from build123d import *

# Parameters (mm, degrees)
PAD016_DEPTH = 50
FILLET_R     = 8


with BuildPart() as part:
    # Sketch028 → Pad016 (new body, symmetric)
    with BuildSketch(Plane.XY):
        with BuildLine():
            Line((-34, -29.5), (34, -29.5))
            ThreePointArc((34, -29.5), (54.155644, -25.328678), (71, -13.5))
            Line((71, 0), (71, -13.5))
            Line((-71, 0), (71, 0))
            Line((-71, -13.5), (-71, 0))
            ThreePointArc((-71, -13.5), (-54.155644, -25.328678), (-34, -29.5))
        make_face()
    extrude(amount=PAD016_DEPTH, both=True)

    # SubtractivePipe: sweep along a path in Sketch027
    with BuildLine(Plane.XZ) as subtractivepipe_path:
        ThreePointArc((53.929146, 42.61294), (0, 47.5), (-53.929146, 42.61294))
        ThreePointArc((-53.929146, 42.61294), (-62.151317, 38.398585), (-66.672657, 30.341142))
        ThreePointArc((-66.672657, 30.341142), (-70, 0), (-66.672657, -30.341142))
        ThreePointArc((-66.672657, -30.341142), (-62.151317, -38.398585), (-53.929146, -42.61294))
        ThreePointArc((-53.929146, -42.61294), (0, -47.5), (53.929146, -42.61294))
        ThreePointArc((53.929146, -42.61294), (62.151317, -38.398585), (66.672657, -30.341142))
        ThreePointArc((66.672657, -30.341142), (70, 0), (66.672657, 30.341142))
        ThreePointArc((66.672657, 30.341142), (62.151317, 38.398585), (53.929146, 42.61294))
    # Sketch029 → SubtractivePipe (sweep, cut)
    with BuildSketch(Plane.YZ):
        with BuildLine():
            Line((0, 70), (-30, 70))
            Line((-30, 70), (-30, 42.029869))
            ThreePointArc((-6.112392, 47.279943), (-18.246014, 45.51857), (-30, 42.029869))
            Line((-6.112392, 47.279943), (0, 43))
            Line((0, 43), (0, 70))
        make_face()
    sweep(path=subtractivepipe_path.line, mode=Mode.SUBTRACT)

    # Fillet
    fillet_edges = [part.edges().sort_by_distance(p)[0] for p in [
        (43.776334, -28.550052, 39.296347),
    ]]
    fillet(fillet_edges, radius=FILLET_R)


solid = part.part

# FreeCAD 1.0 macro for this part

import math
import FreeCAD as App
import Part
import Sketcher
from FreeCAD import Vector
Q = App.Units.Quantity


def edges_at(feature, points):
    """Names of the edges that pass closest to the given points."""
    edges = feature.Shape.Edges
    near = lambda p: min(range(len(edges)), key=lambda i: edges[i].distToShape(Part.Vertex(*p))[0])
    return sorted({f"Edge{near(p) + 1}" for p in points})

doc = App.newDocument("Part")
body = doc.addObject("PartDesign::Body", "Body")

sketch1 = body.newObject("Sketcher::SketchObject", "Sketch")
sketch1.AttachmentSupport = (doc.getObject("XY_Plane"), [""])
sketch1.MapMode = "FlatFace"
sketch1.addGeometry([
    Part.LineSegment(Vector(-34, -30, 0), Vector(34, -30, 0)),
    Part.ArcOfCircle(Part.Circle(Vector(34, 21, 0), Vector(0, 0, 1), 51), math.radians(-90), math.radians(-43)),
    Part.LineSegment(Vector(71, -14, 0), Vector(71, 0, 0)),
    Part.LineSegment(Vector(71, 0, 0), Vector(-71, 0, 0)),
    Part.LineSegment(Vector(-71, 0, 0), Vector(-71, -14, 0)),
    Part.ArcOfCircle(Part.Circle(Vector(-34, 21, 0), Vector(0, 0, 1), 51), math.radians(-137), math.radians(-90)),
], False)
sketch1.addConstraint([
    Sketcher.Constraint("Tangent", 0, 2, 1, 1),
    Sketcher.Constraint("Coincident", 1, 2, 2, 1),
    Sketcher.Constraint("Coincident", 2, 2, 3, 1),
    Sketcher.Constraint("Coincident", 3, 2, 4, 1),
    Sketcher.Constraint("Coincident", 4, 2, 5, 1),
    Sketcher.Constraint("Tangent", 5, 2, 0, 1),
    Sketcher.Constraint("Horizontal", 0),
    Sketcher.Constraint("Vertical", 2),
    Sketcher.Constraint("Horizontal", 3),
    Sketcher.Constraint("Vertical", 4),
    Sketcher.Constraint("Equal", 1, 5),
    Sketcher.Constraint("Symmetric", 2, 2, 3, 2, -1, 1),
    Sketcher.Constraint("Horizontal", 1, 2, 4, 2),
    Sketcher.Constraint("DistanceX", 0, 1, 0, 2, 68.0),
    Sketcher.Constraint("DistanceX", 3, 2, 3, 1, 142.0),
    Sketcher.Constraint("DistanceY", 2, 1, 2, 2, 13.5),
    Sketcher.Constraint("DistanceY", 0, 2, 1, 2, 16.0),
])
pad1 = body.newObject("PartDesign::Pad", "Pad")
pad1.Profile = sketch1
pad1.Length = 100
pad1.Midplane = True

sketch2 = body.newObject("Sketcher::SketchObject", "Sketch001")
sketch2.AttachmentSupport = (doc.getObject("YZ_Plane"), [""])
sketch2.MapMode = "FlatFace"
sketch2.addGeometry([
    Part.LineSegment(Vector(0, 70, 0), Vector(-30, 70, 0)),
    Part.LineSegment(Vector(-30, 70, 0), Vector(-30, 42, 0)),
    Part.ArcOfCircle(Part.Circle(Vector(0, -38, 0), Vector(0, 0, 1), 85), math.radians(94.12), math.radians(110.67)),
    Part.LineSegment(Vector(-6, 47, 0), Vector(0, 43, 0)),
    Part.LineSegment(Vector(0, 43, 0), Vector(0, 70, 0)),
], False)
sketch2.addConstraint([
    Sketcher.Constraint("Coincident", 0, 2, 1, 1),
    Sketcher.Constraint("Coincident", 1, 2, 2, 2),
    Sketcher.Constraint("Coincident", 2, 1, 3, 1),
    Sketcher.Constraint("Coincident", 3, 2, 4, 1),
    Sketcher.Constraint("Coincident", 4, 2, 0, 1),
    Sketcher.Constraint("Horizontal", 0),
    Sketcher.Constraint("Vertical", 1),
    Sketcher.Constraint("Vertical", 4),
    Sketcher.Constraint("PointOnObject", 3, 2, -2),
    Sketcher.Constraint("DistanceX", 0, 2, 0, 1, 30.0),
    Sketcher.Constraint("DistanceY", 4, 1, 4, 2, 27.0),
    Sketcher.Constraint("Angle", 3, Q("-35 deg")),
    Sketcher.Constraint("DistanceY", -1, 1, 0, 2, 70.0),
    Sketcher.Constraint("Radius", 2, 85.000043),
    Sketcher.Constraint("DistanceY", 1, 2, 1, 1, 27.970131),
    Sketcher.Constraint("DistanceX", 2, 1, 2, 3, 6.112401),
])

sketch3 = body.newObject("Sketcher::SketchObject", "Sketch002")
sketch3.AttachmentSupport = (doc.getObject("XZ_Plane"), [""])
sketch3.MapMode = "FlatFace"
sketch3.addGeometry([
    Part.ArcOfCircle(Part.Circle(Vector(0, -253, 0), Vector(0, 0, 1), 300), math.radians(80), math.radians(100)),
    Part.ArcOfCircle(Part.Circle(Vector(-51, 27, 0), Vector(0, 0, 1), 16), math.radians(100), math.radians(167)),
    Part.ArcOfCircle(Part.Circle(Vector(70, 0, 0), Vector(0, 0, 1), 140), math.radians(167), math.radians(193)),
    Part.ArcOfCircle(Part.Circle(Vector(-51, -27, 0), Vector(0, 0, 1), 16), math.radians(-167), math.radians(-100)),
    Part.ArcOfCircle(Part.Circle(Vector(0, 253, 0), Vector(0, 0, 1), 300), math.radians(-100), math.radians(-80)),
    Part.ArcOfCircle(Part.Circle(Vector(51, -27, 0), Vector(0, 0, 1), 16), math.radians(-80), math.radians(-13)),
    Part.ArcOfCircle(Part.Circle(Vector(-70, 0, 0), Vector(0, 0, 1), 140), math.radians(-13), math.radians(13)),
    Part.ArcOfCircle(Part.Circle(Vector(51, 27, 0), Vector(0, 0, 1), 16), math.radians(13), math.radians(80)),
], False)
sketch3.addConstraint([
    Sketcher.Constraint("Tangent", 0, 2, 1, 1),
    Sketcher.Constraint("Tangent", 1, 2, 2, 1),
    Sketcher.Constraint("Tangent", 2, 2, 3, 1),
    Sketcher.Constraint("Tangent", 3, 2, 4, 1),
    Sketcher.Constraint("Tangent", 4, 2, 5, 1),
    Sketcher.Constraint("Tangent", 5, 2, 6, 1),
    Sketcher.Constraint("Tangent", 6, 2, 7, 1),
    Sketcher.Constraint("Tangent", 7, 2, 0, 1),
    Sketcher.Constraint("Equal", 1, 3),
    Sketcher.Constraint("Equal", 0, 4),
    Sketcher.Constraint("Equal", 3, 5),
    Sketcher.Constraint("Equal", 2, 6),
    Sketcher.Constraint("Equal", 5, 7),
    Sketcher.Constraint("Symmetric", 0, 3, 4, 3, -1, 1),
    Sketcher.Constraint("Symmetric", 2, 3, 6, 3, -1, 1),
    Sketcher.Constraint("Symmetric", 3, 3, 5, 3, -2),
    Sketcher.Constraint("Radius", 2, 140.00001),
    Sketcher.Constraint("Radius", 0, 300.000015),
    Sketcher.Constraint("Radius", 1, 16.000004),
    Sketcher.Constraint("DistanceX", 1, 3, -1, 1, 51.052922),
    Sketcher.Constraint("DistanceY", -1, 1, 1, 3, 26.87358),
])
doc.recompute()

subtractivepipe = body.newObject("PartDesign::SubtractivePipe", "SubtractivePipe")
subtractivepipe.Profile = sketch2
subtractivepipe.Spine = (sketch3, ["Edge1", "Edge2", "Edge3", "Edge4", "Edge5", "Edge6", "Edge7", "Edge8"])
doc.recompute()

fillet = body.newObject("PartDesign::Fillet", "Fillet")
fillet.Base = (subtractivepipe, edges_at(subtractivepipe, [(43.776, -28.55, 39.296)]))
fillet.Radius = 8

doc.recompute()
